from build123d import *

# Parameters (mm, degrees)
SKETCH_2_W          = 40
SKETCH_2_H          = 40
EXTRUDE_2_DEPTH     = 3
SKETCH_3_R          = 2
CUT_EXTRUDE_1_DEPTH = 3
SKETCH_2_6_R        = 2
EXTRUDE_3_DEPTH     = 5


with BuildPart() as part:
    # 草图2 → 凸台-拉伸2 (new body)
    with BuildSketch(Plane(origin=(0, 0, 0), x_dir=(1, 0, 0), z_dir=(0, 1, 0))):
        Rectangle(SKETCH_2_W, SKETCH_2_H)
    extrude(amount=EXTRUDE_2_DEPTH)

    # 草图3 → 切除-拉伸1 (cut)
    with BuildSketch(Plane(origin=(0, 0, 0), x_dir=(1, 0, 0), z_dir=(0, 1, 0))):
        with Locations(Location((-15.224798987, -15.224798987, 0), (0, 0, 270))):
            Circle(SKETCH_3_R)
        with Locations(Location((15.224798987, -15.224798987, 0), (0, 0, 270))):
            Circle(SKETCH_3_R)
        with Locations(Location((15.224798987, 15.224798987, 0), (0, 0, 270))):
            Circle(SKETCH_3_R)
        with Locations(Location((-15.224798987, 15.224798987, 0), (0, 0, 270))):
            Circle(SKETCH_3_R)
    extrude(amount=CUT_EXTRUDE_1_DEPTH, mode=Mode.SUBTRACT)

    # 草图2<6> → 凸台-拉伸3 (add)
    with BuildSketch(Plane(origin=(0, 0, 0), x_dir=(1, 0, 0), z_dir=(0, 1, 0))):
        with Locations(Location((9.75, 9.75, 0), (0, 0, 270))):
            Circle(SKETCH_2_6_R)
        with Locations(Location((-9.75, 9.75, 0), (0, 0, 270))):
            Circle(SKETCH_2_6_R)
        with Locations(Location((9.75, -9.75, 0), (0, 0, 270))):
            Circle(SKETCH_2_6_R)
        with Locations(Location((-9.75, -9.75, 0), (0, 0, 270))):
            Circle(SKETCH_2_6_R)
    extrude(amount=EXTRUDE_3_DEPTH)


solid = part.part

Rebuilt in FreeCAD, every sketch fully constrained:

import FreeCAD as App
import Part
import Sketcher

V = App.Vector
Q = App.Units.Quantity

doc = App.newDocument("Part")
body = doc.addObject("PartDesign::Body", "Body")

# Sketch on XZ plane
sketch1 = body.newObject("Sketcher::SketchObject", "Sketch")
sketch1.AttachmentSupport = (doc.getObject("XZ_Plane"), [""])
sketch1.MapMode = "FlatFace"
sketch1.addGeometry([
    Part.LineSegment(V(-20, -20, 0), V(-20, 20, 0)),
    Part.LineSegment(V(-20, 20, 0), V(20, 20, 0)),
    Part.LineSegment(V(20, 20, 0), V(20, -20, 0)),
    Part.LineSegment(V(20, -20, 0), V(-20, -20, 0)),
], False)
sketch1.addConstraint([
    Sketcher.Constraint("Coincident", 0, 2, 1, 1),
    Sketcher.Constraint("Coincident", 1, 2, 2, 1),
    Sketcher.Constraint("Coincident", 2, 2, 3, 1),
    Sketcher.Constraint("Coincident", 3, 2, 0, 1),
    Sketcher.Constraint("Vertical", 0),
    Sketcher.Constraint("Horizontal", 1),
    Sketcher.Constraint("Vertical", 2),
    Sketcher.Constraint("Horizontal", 3),
    Sketcher.Constraint("Symmetric", 0, 2, 2, 2, -1, 1),
    Sketcher.Constraint("Equal", 3, 0),
    Sketcher.Constraint("DistanceX", 1, 1, 1, 2, Q("40 mm")),
])
pad1 = body.newObject("PartDesign::Pad", "Pad")
pad1.Profile = sketch1
pad1.Length = 3
pad1.Reversed = True

# Sketch on XZ plane
sketch2 = body.newObject("Sketcher::SketchObject", "Sketch001")
sketch2.AttachmentSupport = (doc.getObject("XZ_Plane"), [""])
sketch2.MapMode = "FlatFace"
sketch2.addGeometry([
    Part.Circle(V(-15.2, 15.2, 0), V(0, 0, 1), 2),
    Part.Circle(V(15.2, 15.2, 0), V(0, 0, 1), 2),
    Part.Circle(V(15.2, -15.2, 0), V(0, 0, 1), 2),
    Part.Circle(V(-15.2, -15.2, 0), V(0, 0, 1), 2),
], False)
sketch2.addConstraint([
    Sketcher.Constraint("Equal", 0, 1),
    Sketcher.Constraint("Equal", 1, 2),
    Sketcher.Constraint("Equal", 2, 3),
    Sketcher.Constraint("Symmetric", 0, 3, 2, 3, -1, 1),
    Sketcher.Constraint("Symmetric", 1, 3, 3, 3, -1, 1),
    Sketcher.Constraint("Symmetric", 0, 3, 1, 3, -2),
    Sketcher.Constraint("Diameter", 0, Q("4 mm")),
    Sketcher.Constraint("DistanceX", 0, 3, -1, 1, Q("15.224799 mm")),
    Sketcher.Constraint("DistanceY", -1, 1, 0, 3, Q("15.224799 mm")),
])
pocket1 = body.newObject("PartDesign::Pocket", "Pocket")
pocket1.Profile = sketch2
pocket1.Length = 3

# Sketch on XZ plane
sketch3 = body.newObject("Sketcher::SketchObject", "Sketch002")
sketch3.AttachmentSupport = (doc.getObject("XZ_Plane"), [""])
sketch3.MapMode = "FlatFace"
sketch3.addGeometry([
    Part.Circle(V(9.8, -9.8, 0), V(0, 0, 1), 2),
    Part.Circle(V(-9.8, -9.8, 0), V(0, 0, 1), 2),
    Part.Circle(V(9.8, 9.8, 0), V(0, 0, 1), 2),
    Part.Circle(V(-9.8, 9.8, 0), V(0, 0, 1), 2),
], False)
sketch3.addConstraint([
    Sketcher.Constraint("Equal", 0, 1),
    Sketcher.Constraint("Equal", 1, 2),
    Sketcher.Constraint("Equal", 2, 3),
    Sketcher.Constraint("Symmetric", 1, 3, 2, 3, -1, 1),
    Sketcher.Constraint("Symmetric", 0, 3, 3, 3, -1, 1),
    Sketcher.Constraint("Symmetric", 0, 3, 1, 3, -2),
    Sketcher.Constraint("Diameter", 0, Q("4 mm")),
    Sketcher.Constraint("DistanceX", 1, 3, 0, 3, Q("19.5 mm")),
    Sketcher.Constraint("DistanceY", 0, 3, 2, 3, Q("19.5 mm")),
])
pad2 = body.newObject("PartDesign::Pad", "Pad001")
pad2.Profile = sketch3
pad2.Length = 5
pad2.Reversed = True

doc.recompute()
